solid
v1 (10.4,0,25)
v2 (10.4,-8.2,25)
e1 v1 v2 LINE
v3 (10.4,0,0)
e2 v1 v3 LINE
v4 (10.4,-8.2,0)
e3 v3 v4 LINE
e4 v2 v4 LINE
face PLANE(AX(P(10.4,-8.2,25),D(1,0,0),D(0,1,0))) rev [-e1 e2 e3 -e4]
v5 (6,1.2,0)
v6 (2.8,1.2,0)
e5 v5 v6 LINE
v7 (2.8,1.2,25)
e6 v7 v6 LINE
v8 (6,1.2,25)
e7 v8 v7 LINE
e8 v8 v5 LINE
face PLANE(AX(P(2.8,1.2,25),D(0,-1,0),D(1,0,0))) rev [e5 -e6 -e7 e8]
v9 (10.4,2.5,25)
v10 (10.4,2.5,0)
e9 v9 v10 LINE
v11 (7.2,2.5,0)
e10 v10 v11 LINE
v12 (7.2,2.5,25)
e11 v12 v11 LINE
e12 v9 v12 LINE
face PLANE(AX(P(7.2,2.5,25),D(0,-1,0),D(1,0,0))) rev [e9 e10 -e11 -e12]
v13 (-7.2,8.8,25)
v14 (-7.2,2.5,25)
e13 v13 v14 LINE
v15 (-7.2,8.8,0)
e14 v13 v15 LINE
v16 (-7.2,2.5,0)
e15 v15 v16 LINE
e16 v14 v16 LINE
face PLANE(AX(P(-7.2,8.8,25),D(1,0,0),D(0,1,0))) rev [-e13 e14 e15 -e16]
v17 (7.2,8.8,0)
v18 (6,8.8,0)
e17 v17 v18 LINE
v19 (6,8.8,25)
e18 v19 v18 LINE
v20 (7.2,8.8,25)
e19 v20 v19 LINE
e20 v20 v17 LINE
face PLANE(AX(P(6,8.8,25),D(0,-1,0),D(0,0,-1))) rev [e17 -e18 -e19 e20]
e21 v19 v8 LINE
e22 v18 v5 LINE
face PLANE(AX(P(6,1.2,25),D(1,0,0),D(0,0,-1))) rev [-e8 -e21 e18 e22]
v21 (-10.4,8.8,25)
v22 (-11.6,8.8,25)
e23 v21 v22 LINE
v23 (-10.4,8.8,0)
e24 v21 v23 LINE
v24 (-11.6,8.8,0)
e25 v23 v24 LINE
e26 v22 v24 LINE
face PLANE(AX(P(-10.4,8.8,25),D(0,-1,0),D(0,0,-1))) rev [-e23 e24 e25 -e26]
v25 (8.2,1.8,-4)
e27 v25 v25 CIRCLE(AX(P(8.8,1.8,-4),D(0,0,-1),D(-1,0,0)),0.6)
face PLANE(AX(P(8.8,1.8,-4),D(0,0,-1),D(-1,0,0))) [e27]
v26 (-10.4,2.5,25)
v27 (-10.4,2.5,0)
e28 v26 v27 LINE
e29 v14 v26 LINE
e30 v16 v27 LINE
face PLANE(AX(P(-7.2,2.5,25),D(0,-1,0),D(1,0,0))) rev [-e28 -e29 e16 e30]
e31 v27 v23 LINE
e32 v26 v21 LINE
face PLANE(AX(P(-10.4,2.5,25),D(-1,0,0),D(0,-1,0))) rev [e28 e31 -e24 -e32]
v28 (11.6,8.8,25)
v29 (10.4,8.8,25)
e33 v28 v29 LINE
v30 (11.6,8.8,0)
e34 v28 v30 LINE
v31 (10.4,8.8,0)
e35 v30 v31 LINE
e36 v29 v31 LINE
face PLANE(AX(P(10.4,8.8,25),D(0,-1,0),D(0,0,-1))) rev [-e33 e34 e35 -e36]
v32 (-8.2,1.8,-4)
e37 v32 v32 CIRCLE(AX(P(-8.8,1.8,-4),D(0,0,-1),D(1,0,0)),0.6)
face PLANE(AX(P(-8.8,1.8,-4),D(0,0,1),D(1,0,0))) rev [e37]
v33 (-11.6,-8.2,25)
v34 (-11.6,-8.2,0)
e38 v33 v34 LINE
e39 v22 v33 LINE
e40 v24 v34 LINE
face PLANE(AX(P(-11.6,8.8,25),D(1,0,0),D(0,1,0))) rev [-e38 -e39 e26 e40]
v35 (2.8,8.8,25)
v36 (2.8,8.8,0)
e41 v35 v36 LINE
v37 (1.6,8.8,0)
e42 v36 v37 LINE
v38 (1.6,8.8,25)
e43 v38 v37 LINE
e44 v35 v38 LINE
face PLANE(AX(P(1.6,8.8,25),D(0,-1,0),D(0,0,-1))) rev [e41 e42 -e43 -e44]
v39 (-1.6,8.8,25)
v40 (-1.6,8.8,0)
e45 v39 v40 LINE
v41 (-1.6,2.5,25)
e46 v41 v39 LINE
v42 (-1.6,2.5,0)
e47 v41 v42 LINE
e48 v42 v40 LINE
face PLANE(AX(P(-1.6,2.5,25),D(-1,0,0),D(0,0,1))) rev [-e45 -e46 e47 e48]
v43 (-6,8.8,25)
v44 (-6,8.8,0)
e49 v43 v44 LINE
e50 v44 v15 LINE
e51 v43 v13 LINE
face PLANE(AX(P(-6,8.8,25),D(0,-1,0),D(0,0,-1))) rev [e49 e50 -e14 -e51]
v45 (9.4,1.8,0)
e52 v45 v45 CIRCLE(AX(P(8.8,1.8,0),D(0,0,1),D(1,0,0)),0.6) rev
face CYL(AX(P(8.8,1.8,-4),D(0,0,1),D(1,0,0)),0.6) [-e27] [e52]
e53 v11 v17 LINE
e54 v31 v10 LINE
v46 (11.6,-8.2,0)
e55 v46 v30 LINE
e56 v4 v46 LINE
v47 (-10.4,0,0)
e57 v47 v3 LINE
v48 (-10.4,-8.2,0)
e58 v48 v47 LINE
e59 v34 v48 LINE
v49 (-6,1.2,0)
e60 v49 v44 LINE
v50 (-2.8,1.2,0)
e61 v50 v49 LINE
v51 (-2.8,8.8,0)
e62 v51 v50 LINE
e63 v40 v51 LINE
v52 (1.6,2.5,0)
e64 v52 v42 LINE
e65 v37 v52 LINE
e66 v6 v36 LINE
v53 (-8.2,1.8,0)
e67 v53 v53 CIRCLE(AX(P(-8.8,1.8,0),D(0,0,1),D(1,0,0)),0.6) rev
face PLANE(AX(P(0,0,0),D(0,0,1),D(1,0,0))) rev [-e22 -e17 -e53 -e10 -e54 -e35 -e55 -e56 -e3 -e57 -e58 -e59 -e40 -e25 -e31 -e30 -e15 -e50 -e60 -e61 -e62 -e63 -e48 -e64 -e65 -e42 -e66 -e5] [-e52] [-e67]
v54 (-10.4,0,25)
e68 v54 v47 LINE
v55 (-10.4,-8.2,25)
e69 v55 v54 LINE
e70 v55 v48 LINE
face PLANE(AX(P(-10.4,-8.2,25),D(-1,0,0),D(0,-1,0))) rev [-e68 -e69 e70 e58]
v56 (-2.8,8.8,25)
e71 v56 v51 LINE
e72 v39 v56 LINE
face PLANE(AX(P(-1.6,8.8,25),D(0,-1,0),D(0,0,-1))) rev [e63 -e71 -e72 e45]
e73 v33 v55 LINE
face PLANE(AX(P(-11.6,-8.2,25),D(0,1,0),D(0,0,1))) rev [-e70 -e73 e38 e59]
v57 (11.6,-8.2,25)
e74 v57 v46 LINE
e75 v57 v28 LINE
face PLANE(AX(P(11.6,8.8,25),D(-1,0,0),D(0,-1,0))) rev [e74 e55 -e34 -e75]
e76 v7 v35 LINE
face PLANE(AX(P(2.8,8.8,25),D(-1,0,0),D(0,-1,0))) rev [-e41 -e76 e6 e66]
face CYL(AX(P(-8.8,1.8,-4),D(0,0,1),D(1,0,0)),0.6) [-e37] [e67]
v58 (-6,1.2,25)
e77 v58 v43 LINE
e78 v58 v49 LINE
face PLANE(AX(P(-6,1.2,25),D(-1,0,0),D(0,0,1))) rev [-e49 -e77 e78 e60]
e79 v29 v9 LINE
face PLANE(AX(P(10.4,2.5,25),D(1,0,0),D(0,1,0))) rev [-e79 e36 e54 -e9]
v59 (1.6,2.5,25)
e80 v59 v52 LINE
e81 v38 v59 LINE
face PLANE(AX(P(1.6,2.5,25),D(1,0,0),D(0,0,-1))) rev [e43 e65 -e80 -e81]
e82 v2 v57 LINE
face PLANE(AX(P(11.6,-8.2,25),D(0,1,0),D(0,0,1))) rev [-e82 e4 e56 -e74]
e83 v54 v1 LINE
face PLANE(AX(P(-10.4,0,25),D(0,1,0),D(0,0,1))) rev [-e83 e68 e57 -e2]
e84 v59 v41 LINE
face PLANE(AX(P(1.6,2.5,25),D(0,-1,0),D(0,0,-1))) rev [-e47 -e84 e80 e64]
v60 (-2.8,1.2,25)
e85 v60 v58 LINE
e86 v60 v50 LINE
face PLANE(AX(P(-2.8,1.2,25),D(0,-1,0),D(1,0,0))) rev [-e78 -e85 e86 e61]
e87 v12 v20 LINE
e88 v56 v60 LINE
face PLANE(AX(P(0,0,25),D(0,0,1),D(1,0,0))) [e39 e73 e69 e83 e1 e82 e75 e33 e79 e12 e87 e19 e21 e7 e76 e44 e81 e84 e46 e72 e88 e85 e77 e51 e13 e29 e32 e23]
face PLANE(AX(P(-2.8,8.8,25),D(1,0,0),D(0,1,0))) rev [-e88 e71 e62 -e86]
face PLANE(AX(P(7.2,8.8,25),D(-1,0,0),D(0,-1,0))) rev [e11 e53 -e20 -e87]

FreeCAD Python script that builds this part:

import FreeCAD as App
import Part
import Sketcher

doc = App.newDocument("Part")
body = doc.addObject("PartDesign::Body", "Body")

# Sketch on XY plane
sketch1 = doc.addObject("Sketcher::SketchObject", "Sketch")
body.addObject(sketch1)
sketch1.AttachmentSupport = (doc.XY_Plane, [""])
sketch1.MapMode = "FlatFace"
sketch1.addGeometry(Part.LineSegment(App.Vector(-11.6, 8.8, 0), App.Vector(-11.6, -8.2, 0)), False)
sketch1.addGeometry(Part.LineSegment(App.Vector(-11.6, -8.2, 0), App.Vector(-10.4, -8.2, 0)), False)
sketch1.addGeometry(Part.LineSegment(App.Vector(-10.4, -8.2, 0), App.Vector(-10.4, 0, 0)), False)
sketch1.addGeometry(Part.LineSegment(App.Vector(-10.4, 0, 0), App.Vector(10.4, 0, 0)), False)
sketch1.addGeometry(Part.LineSegment(App.Vector(10.4, 0, 0), App.Vector(10.4, -8.2, 0)), False)
sketch1.addGeometry(Part.LineSegment(App.Vector(10.4, -8.2, 0), App.Vector(11.6, -8.2, 0)), False)
sketch1.addGeometry(Part.LineSegment(App.Vector(11.6, -8.2, 0), App.Vector(11.6, 8.8, 0)), False)
sketch1.addGeometry(Part.LineSegment(App.Vector(11.6, 8.8, 0), App.Vector(10.4, 8.8, 0)), False)
sketch1.addGeometry(Part.LineSegment(App.Vector(10.4, 8.8, 0), App.Vector(10.4, 2.5, 0)), False)
sketch1.addGeometry(Part.LineSegment(App.Vector(10.4, 2.5, 0), App.Vector(7.2, 2.5, 0)), False)
sketch1.addGeometry(Part.LineSegment(App.Vector(7.2, 2.5, 0), App.Vector(7.2, 8.8, 0)), False)
sketch1.addGeometry(Part.LineSegment(App.Vector(7.2, 8.8, 0), App.Vector(6, 8.8, 0)), False)
sketch1.addGeometry(Part.LineSegment(App.Vector(6, 8.8, 0), App.Vector(6, 1.2, 0)), False)
sketch1.addGeometry(Part.LineSegment(App.Vector(6, 1.2, 0), App.Vector(2.8, 1.2, 0)), False)
sketch1.addGeometry(Part.LineSegment(App.Vector(2.8, 1.2, 0), App.Vector(2.8, 8.8, 0)), False)
sketch1.addGeometry(Part.LineSegment(App.Vector(2.8, 8.8, 0), App.Vector(1.6, 8.8, 0)), False)
sketch1.addGeometry(Part.LineSegment(App.Vector(1.6, 8.8, 0), App.Vector(1.6, 2.5, 0)), False)
sketch1.addGeometry(Part.LineSegment(App.Vector(1.6, 2.5, 0), App.Vector(-1.6, 2.5, 0)), False)
sketch1.addGeometry(Part.LineSegment(App.Vector(-1.6, 2.5, 0), App.Vector(-1.6, 8.8, 0)), False)
sketch1.addGeometry(Part.LineSegment(App.Vector(-1.6, 8.8, 0), App.Vector(-2.8, 8.8, 0)), False)
sketch1.addGeometry(Part.LineSegment(App.Vector(-2.8, 8.8, 0), App.Vector(-2.8, 1.2, 0)), False)
sketch1.addGeometry(Part.LineSegment(App.Vector(-2.8, 1.2, 0), App.Vector(-6, 1.2, 0)), False)
sketch1.addGeometry(Part.LineSegment(App.Vector(-6, 1.2, 0), App.Vector(-6, 8.8, 0)), False)
sketch1.addGeometry(Part.LineSegment(App.Vector(-6, 8.8, 0), App.Vector(-7.2, 8.8, 0)), False)
sketch1.addGeometry(Part.LineSegment(App.Vector(-7.2, 8.8, 0), App.Vector(-7.2, 2.5, 0)), False)
sketch1.addGeometry(Part.LineSegment(App.Vector(-7.2, 2.5, 0), App.Vector(-10.4, 2.5, 0)), False)
sketch1.addGeometry(Part.LineSegment(App.Vector(-10.4, 2.5, 0), App.Vector(-10.4, 8.8, 0)), False)
sketch1.addGeometry(Part.LineSegment(App.Vector(-10.4, 8.8, 0), App.Vector(-11.6, 8.8, 0)), False)
sketch1.addConstraint(Sketcher.Constraint("Coincident", 0, 2, 1, 1))
sketch1.addConstraint(Sketcher.Constraint("Coincident", 1, 2, 2, 1))
sketch1.addConstraint(Sketcher.Constraint("Coincident", 2, 2, 3, 1))
sketch1.addConstraint(Sketcher.Constraint("Coincident", 3, 2, 4, 1))
sketch1.addConstraint(Sketcher.Constraint("Coincident", 4, 2, 5, 1))
sketch1.addConstraint(Sketcher.Constraint("Coincident", 5, 2, 6, 1))
sketch1.addConstraint(Sketcher.Constraint("Coincident", 6, 2, 7, 1))
sketch1.addConstraint(Sketcher.Constraint("Coincident", 7, 2, 8, 1))
sketch1.addConstraint(Sketcher.Constraint("Coincident", 8, 2, 9, 1))
sketch1.addConstraint(Sketcher.Constraint("Coincident", 9, 2, 10, 1))
sketch1.addConstraint(Sketcher.Constraint("Coincident", 10, 2, 11, 1))
sketch1.addConstraint(Sketcher.Constraint("Coincident", 11, 2, 12, 1))
sketch1.addConstraint(Sketcher.Constraint("Coincident", 12, 2, 13, 1))
sketch1.addConstraint(Sketcher.Constraint("Coincident", 13, 2, 14, 1))
sketch1.addConstraint(Sketcher.Constraint("Coincident", 14, 2, 15, 1))
sketch1.addConstraint(Sketcher.Constraint("Coincident", 15, 2, 16, 1))
sketch1.addConstraint(Sketcher.Constraint("Coincident", 16, 2, 17, 1))
sketch1.addConstraint(Sketcher.Constraint("Coincident", 17, 2, 18, 1))
sketch1.addConstraint(Sketcher.Constraint("Coincident", 18, 2, 19, 1))
sketch1.addConstraint(Sketcher.Constraint("Coincident", 19, 2, 20, 1))
sketch1.addConstraint(Sketcher.Constraint("Coincident", 20, 2, 21, 1))
sketch1.addConstraint(Sketcher.Constraint("Coincident", 21, 2, 22, 1))
sketch1.addConstraint(Sketcher.Constraint("Coincident", 22, 2, 23, 1))
sketch1.addConstraint(Sketcher.Constraint("Coincident", 23, 2, 24, 1))
sketch1.addConstraint(Sketcher.Constraint("Coincident", 24, 2, 25, 1))
sketch1.addConstraint(Sketcher.Constraint("Coincident", 25, 2, 26, 1))
sketch1.addConstraint(Sketcher.Constraint("Coincident", 26, 2, 27, 1))
sketch1.addConstraint(Sketcher.Constraint("Coincident", 27, 2, 0, 1))
sketch1.addConstraint(Sketcher.Constraint("Vertical", 0))
sketch1.addConstraint(Sketcher.Constraint("Horizontal", 1))
sketch1.addConstraint(Sketcher.Constraint("Vertical", 2))
sketch1.addConstraint(Sketcher.Constraint("Horizontal", 3))
sketch1.addConstraint(Sketcher.Constraint("Vertical", 4))
sketch1.addConstraint(Sketcher.Constraint("Horizontal", 5))
sketch1.addConstraint(Sketcher.Constraint("Vertical", 6))
sketch1.addConstraint(Sketcher.Constraint("Horizontal", 7))
sketch1.addConstraint(Sketcher.Constraint("Vertical", 8))
sketch1.addConstraint(Sketcher.Constraint("Horizontal", 9))
sketch1.addConstraint(Sketcher.Constraint("Vertical", 10))
sketch1.addConstraint(Sketcher.Constraint("Horizontal", 11))
sketch1.addConstraint(Sketcher.Constraint("Vertical", 12))
sketch1.addConstraint(Sketcher.Constraint("Horizontal", 13))
sketch1.addConstraint(Sketcher.Constraint("Vertical", 14))
sketch1.addConstraint(Sketcher.Constraint("Horizontal", 15))
sketch1.addConstraint(Sketcher.Constraint("Vertical", 16))
sketch1.addConstraint(Sketcher.Constraint("Horizontal", 17))
sketch1.addConstraint(Sketcher.Constraint("Vertical", 18))
sketch1.addConstraint(Sketcher.Constraint("Horizontal", 19))
sketch1.addConstraint(Sketcher.Constraint("Vertical", 20))
sketch1.addConstraint(Sketcher.Constraint("Horizontal", 21))
sketch1.addConstraint(Sketcher.Constraint("Vertical", 22))
sketch1.addConstraint(Sketcher.Constraint("Horizontal", 23))
sketch1.addConstraint(Sketcher.Constraint("Vertical", 24))
sketch1.addConstraint(Sketcher.Constraint("Horizontal", 25))
sketch1.addConstraint(Sketcher.Constraint("Vertical", 26))
sketch1.addConstraint(Sketcher.Constraint("Horizontal", 27))
sketch1.addConstraint(Sketcher.Constraint("Symmetric", 2, 2, 3, 2, -1, 1))
sketch1.addConstraint(Sketcher.Constraint("Symmetric", 0, 2, 5, 2, -2))
sketch1.addConstraint(Sketcher.Constraint("Symmetric", 15, 2, 18, 2, -2))
sketch1.addConstraint(Sketcher.Constraint("Symmetric", 13, 2, 20, 2, -2))
sketch1.addConstraint(Sketcher.Constraint("Symmetric", 11, 2, 22, 2, -2))
sketch1.addConstraint(Sketcher.Constraint("Symmetric", 9, 2, 24, 2, -2))
sketch1.addConstraint(Sketcher.Constraint("Symmetric", 7, 2, 26, 2, -2))
sketch1.addConstraint(Sketcher.Constraint("Horizontal", 7, 2, 10, 2))
sketch1.addConstraint(Sketcher.Constraint("Horizontal", 11, 2, 14, 2))
sketch1.addConstraint(Sketcher.Constraint("Horizontal", 9, 2, 16, 2))
sketch1.addConstraint(Sketcher.Constraint("Vertical", 4, 2, 7, 2))
sketch1.addConstraint(Sketcher.Constraint("Equal", 7, 11))
sketch1.addConstraint(Sketcher.Constraint("Equal", 9, 13))
sketch1.addConstraint(Sketcher.Constraint("Equal", 11, 15))
sketch1.addConstraint(Sketcher.Constraint("Equal", 13, 17))
sketch1.addConstraint(Sketcher.Constraint("DistanceY", 0, 2, 0, 1, 17.0))
sketch1.addConstraint(Sketcher.Constraint("DistanceX", 1, 1, 1, 2, 1.2))
sketch1.addConstraint(Sketcher.Constraint("DistanceX", 3, 1, 3, 2, 20.8))
sketch1.addConstraint(Sketcher.Constraint("DistanceY", 2, 1, 2, 2, 8.2))
sketch1.addConstraint(Sketcher.Constraint("DistanceY", 8, 2, 8, 1, 6.3))
sketch1.addConstraint(Sketcher.Constraint("DistanceY", 12, 2, 12, 1, 7.6))
pad1 = doc.addObject("PartDesign::Pad", "Pad")
body.addObject(pad1)
pad1.Profile = sketch1
pad1.Length = 25

# Sketch on XY plane
sketch2 = doc.addObject("Sketcher::SketchObject", "Sketch001")
body.addObject(sketch2)
sketch2.AttachmentSupport = (doc.XY_Plane, [""])
sketch2.MapMode = "FlatFace"
sketch2.addGeometry(Part.Circle(App.Vector(8.8, 1.8, 0), App.Vector(0, 0, 1), 0.6), False)
sketch2.addGeometry(Part.Circle(App.Vector(-8.8, 1.8, 0), App.Vector(0, 0, 1), 0.6), False)
sketch2.addConstraint(Sketcher.Constraint("Equal", 0, 1))
sketch2.addConstraint(Sketcher.Constraint("Symmetric", 0, 3, 1, 3, -2))
sketch2.addConstraint(Sketcher.Constraint("Diameter", 0, 1.2))
sketch2.addConstraint(Sketcher.Constraint("DistanceX", -1, 1, 0, 3, 8.8))
sketch2.addConstraint(Sketcher.Constraint("DistanceY", -1, 1, 0, 3, 1.8))
pad2 = doc.addObject("PartDesign::Pad", "Pad001")
body.addObject(pad2)
pad2.Profile = sketch2
pad2.Length = 4
pad2.Reversed = True

doc.recompute()
